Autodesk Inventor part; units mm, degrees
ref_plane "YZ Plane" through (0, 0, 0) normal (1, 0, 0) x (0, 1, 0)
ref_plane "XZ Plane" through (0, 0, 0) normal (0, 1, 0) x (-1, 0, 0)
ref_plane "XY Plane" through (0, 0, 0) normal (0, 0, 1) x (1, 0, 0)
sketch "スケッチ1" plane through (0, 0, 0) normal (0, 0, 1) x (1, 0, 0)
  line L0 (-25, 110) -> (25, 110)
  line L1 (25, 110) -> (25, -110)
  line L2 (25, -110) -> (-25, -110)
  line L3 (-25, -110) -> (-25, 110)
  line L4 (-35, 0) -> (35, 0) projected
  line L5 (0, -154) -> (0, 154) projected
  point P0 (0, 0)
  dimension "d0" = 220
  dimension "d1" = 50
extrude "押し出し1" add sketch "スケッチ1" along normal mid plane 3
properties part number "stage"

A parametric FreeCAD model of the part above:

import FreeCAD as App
import Part
import Sketcher

doc = App.newDocument("Part")
body = doc.addObject("PartDesign::Body", "Body")

sketch1 = body.newObject("Sketcher::SketchObject", "Sketch")
sketch1.AttachmentSupport = (doc.getObject("XY_Plane"), [""])
sketch1.MapMode = "FlatFace"
sketch1.addGeometry(Part.LineSegment(App.Vector(-25, 110, 0), App.Vector(-25, -110, 0)), False)
sketch1.addGeometry(Part.LineSegment(App.Vector(-25, -110, 0), App.Vector(25, -110, 0)), False)
sketch1.addGeometry(Part.LineSegment(App.Vector(25, -110, 0), App.Vector(25, 110, 0)), False)
sketch1.addGeometry(Part.LineSegment(App.Vector(25, 110, 0), App.Vector(-25, 110, 0)), False)
sketch1.addConstraint(Sketcher.Constraint("Coincident", 0, 2, 1, 1))
sketch1.addConstraint(Sketcher.Constraint("Coincident", 1, 2, 2, 1))
sketch1.addConstraint(Sketcher.Constraint("Coincident", 2, 2, 3, 1))
sketch1.addConstraint(Sketcher.Constraint("Coincident", 3, 2, 0, 1))
sketch1.addConstraint(Sketcher.Constraint("Vertical", 0))
sketch1.addConstraint(Sketcher.Constraint("Horizontal", 1))
sketch1.addConstraint(Sketcher.Constraint("Vertical", 2))
sketch1.addConstraint(Sketcher.Constraint("Horizontal", 3))
sketch1.addConstraint(Sketcher.Constraint("Symmetric", 0, 2, 2, 2, -1, 1))
sketch1.addConstraint(Sketcher.Constraint("DistanceX", 1, 1, 1, 2, 50.0))
sketch1.addConstraint(Sketcher.Constraint("DistanceY", 0, 2, 0, 1, 220.0))
pad1 = body.newObject("PartDesign::Pad", "Pad")
pad1.Profile = sketch1
pad1.Length = 3
pad1.Midplane = True

doc.recompute()
